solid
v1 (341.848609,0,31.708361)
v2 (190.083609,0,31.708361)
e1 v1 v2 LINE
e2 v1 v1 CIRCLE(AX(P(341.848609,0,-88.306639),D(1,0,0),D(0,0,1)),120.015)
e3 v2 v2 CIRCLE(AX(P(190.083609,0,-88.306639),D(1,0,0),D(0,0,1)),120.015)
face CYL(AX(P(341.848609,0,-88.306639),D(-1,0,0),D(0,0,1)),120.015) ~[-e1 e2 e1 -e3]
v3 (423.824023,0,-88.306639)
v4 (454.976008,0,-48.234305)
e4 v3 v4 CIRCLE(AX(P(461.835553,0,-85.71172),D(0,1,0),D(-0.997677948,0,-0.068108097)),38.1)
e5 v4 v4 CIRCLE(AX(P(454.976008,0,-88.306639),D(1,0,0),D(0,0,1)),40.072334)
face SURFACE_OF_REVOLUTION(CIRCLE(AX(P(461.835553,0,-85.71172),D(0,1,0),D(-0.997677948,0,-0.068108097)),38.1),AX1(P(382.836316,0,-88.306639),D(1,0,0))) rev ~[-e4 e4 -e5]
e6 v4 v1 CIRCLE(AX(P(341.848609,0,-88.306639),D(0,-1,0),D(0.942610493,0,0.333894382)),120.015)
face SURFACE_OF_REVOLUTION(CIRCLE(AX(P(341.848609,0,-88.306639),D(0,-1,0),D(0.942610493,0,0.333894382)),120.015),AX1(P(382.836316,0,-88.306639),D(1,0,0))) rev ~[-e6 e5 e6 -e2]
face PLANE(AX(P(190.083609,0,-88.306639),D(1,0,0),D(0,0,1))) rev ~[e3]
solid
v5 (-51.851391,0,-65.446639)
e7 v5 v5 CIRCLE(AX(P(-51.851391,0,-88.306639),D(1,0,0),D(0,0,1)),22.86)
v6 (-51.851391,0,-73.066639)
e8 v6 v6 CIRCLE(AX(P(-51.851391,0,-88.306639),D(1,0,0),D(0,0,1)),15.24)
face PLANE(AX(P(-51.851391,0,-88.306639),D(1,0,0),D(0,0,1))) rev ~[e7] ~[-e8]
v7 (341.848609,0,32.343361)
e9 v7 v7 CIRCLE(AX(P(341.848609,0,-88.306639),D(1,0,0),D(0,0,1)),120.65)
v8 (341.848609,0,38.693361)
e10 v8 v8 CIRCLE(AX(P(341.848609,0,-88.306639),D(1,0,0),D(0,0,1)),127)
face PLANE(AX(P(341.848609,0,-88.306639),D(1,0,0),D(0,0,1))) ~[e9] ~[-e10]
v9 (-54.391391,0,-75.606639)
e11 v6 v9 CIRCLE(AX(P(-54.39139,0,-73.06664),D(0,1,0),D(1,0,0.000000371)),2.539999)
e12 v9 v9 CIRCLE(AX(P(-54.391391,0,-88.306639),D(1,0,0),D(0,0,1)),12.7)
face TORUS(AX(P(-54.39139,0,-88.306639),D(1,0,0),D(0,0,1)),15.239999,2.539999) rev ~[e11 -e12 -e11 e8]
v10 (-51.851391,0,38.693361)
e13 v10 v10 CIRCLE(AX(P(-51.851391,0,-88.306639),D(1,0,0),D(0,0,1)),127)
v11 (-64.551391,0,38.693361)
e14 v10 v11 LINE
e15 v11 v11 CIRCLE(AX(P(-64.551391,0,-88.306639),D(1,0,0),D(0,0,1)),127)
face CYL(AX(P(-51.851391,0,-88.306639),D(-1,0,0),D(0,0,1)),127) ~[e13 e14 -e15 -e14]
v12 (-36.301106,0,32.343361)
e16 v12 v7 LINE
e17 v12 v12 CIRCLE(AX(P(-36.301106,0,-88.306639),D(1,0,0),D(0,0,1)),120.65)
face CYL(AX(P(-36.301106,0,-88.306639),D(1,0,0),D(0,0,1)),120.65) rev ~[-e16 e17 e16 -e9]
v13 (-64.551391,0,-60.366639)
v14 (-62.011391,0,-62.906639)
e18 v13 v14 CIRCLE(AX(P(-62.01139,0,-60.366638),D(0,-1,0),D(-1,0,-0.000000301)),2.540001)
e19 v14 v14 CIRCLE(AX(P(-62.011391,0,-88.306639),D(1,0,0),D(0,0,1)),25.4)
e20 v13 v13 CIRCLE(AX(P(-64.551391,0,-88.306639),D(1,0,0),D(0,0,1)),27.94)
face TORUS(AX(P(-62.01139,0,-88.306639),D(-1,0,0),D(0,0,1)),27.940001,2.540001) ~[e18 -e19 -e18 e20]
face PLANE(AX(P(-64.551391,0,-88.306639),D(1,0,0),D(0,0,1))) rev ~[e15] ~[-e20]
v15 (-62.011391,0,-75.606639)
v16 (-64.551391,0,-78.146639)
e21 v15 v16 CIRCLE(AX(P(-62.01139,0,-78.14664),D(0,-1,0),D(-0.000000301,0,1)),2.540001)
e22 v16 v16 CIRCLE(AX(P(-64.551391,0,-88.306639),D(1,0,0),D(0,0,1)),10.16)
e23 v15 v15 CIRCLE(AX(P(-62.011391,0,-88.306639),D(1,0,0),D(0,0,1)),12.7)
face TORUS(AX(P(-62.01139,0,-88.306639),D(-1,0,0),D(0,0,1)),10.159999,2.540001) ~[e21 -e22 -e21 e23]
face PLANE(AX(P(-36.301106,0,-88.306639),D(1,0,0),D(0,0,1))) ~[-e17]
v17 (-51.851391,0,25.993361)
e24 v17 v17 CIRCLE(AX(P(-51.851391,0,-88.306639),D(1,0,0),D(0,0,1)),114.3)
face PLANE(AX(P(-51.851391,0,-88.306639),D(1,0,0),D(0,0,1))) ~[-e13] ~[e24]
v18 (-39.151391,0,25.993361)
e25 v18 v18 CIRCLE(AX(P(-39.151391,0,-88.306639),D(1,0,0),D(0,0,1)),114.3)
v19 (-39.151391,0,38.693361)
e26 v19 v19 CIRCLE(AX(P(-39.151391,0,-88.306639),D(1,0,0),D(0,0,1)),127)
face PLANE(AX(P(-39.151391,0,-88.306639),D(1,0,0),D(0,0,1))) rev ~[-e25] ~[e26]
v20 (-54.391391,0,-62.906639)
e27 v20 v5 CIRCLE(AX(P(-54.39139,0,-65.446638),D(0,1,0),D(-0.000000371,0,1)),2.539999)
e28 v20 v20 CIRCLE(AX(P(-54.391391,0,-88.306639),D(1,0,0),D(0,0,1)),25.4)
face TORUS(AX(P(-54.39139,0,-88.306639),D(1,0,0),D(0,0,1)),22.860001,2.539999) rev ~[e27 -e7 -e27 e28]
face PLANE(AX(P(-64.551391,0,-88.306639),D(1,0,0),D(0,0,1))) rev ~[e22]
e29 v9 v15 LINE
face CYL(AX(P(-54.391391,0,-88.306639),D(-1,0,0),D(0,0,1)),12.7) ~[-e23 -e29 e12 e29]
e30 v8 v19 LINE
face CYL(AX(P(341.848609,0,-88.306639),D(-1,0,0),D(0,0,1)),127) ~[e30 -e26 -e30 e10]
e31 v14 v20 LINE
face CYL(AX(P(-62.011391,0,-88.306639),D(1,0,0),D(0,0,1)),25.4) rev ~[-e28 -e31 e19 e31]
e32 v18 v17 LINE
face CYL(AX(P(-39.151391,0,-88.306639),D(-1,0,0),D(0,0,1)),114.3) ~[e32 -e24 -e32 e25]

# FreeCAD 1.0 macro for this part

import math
import FreeCAD as App
import Part
import Sketcher
Q = App.Units.Quantity

doc = App.newDocument("Part")
params = doc.addObject("Spreadsheet::Sheet", "Params")
for row, (alias, value) in enumerate([
    ("sketch1_radius", "0.1 in"),
    ("sketch1_width", "15 in"),
    ("sketch1_width2", "16 in"),
    ("sketch1_height", "3.9 in"),
    ("sketch1_height2", "0.4 in"),
    ("revolution_angle", "360 deg"),
    ("sketch2_radius", "1.5 in"),
    ("sketch2_radius2", "4.725 in"),
    ("sketch2_width", "5.975 in"),
    ("revolution2_angle", "360 deg"),
], start=1):
    params.set(f"A{row}", alias)
    params.set(f"B{row}", "=" + value)
    params.setAlias(f"B{row}", alias)

body = doc.addObject("PartDesign::Body", "Body")

# Sketch on XZ plane
sketch1 = body.newObject("Sketcher::SketchObject", "Sketch")
sketch1.AttachmentSupport = (doc.getObject("XZ_Plane"), [""])
sketch1.MapMode = "FlatFace"
sketch1.addGeometry([
    Part.LineSegment(App.Vector(-51.9, 38.7, 0), App.Vector(-64.6, 38.7, 0)),  # 0
    Part.LineSegment(App.Vector(-64.6, 38.7, 0), App.Vector(-64.6, -60.4, 0)),  # 1
    Part.ArcOfCircle(Part.Circle(App.Vector(-62, -60.4, 0), App.Vector(0, 0, 1), 2.5), math.radians(-180), math.radians(-90)),  # 2
    Part.LineSegment(App.Vector(-62, -62.9, 0), App.Vector(-54.4, -62.9, 0)),  # 3
    Part.ArcOfCircle(Part.Circle(App.Vector(-54.4, -65.4, 0), App.Vector(0, 0, 1), 2.5), math.radians(0), math.radians(90)),  # 4
    Part.LineSegment(App.Vector(-51.9, -65.4, 0), App.Vector(-51.9, -73.1, 0)),  # 5
    Part.ArcOfCircle(Part.Circle(App.Vector(-54.4, -73.1, 0), App.Vector(0, 0, 1), 2.5), math.radians(-90), math.radians(0)),  # 6
    Part.LineSegment(App.Vector(-54.4, -75.6, 0), App.Vector(-62, -75.6, 0)),  # 7
    Part.ArcOfCircle(Part.Circle(App.Vector(-62, -78.1, 0), App.Vector(0, 0, 1), 2.5), math.radians(90), math.radians(180)),  # 8
    Part.LineSegment(App.Vector(-64.6, -78.1, 0), App.Vector(-64.6, -88.3, 0)),  # 9
    Part.LineSegment(App.Vector(-64.6, -88.3, 0), App.Vector(-36.3, -88.3, 0)),  # 10
    Part.LineSegment(App.Vector(-36.3, -88.3, 0), App.Vector(-36.3, 32.3, 0)),  # 11
    Part.LineSegment(App.Vector(-36.3, 32.3, 0), App.Vector(341.8, 32.3, 0)),  # 12
    Part.LineSegment(App.Vector(341.8, 32.3, 0), App.Vector(341.8, 38.7, 0)),  # 13
    Part.LineSegment(App.Vector(341.8, 38.7, 0), App.Vector(-39.2, 38.7, 0)),  # 14
    Part.LineSegment(App.Vector(-39.2, 38.7, 0), App.Vector(-39.2, 26, 0)),  # 15
    Part.LineSegment(App.Vector(-39.2, 26, 0), App.Vector(-51.9, 26, 0)),  # 16
    Part.LineSegment(App.Vector(-51.9, 26, 0), App.Vector(-51.9, 38.7, 0)),  # 17
], False)
sketch1.addGeometry(Part.LineSegment(App.Vector(-64.6, -88.3, 0), App.Vector(341.8, -88.3, 0)), True)  # axis
sketch1.addConstraint([
    Sketcher.Constraint("Coincident", 0, 2, 1, 1),
    Sketcher.Constraint("Tangent", 1, 2, 2, 1),
    Sketcher.Constraint("Tangent", 2, 2, 3, 1),
    Sketcher.Constraint("Tangent", 3, 2, 4, 2),
    Sketcher.Constraint("Tangent", 4, 1, 5, 1),
    Sketcher.Constraint("Tangent", 5, 2, 6, 2),
    Sketcher.Constraint("Tangent", 6, 1, 7, 1),
    Sketcher.Constraint("Tangent", 7, 2, 8, 1),
    Sketcher.Constraint("Tangent", 8, 2, 9, 1),
    Sketcher.Constraint("Coincident", 9, 2, 10, 1),
    Sketcher.Constraint("Coincident", 10, 2, 11, 1),
    Sketcher.Constraint("Coincident", 11, 2, 12, 1),
    Sketcher.Constraint("Coincident", 12, 2, 13, 1),
    Sketcher.Constraint("Coincident", 13, 2, 14, 1),
    Sketcher.Constraint("Coincident", 14, 2, 15, 1),
    Sketcher.Constraint("Coincident", 15, 2, 16, 1),
    Sketcher.Constraint("Coincident", 16, 2, 17, 1),
    Sketcher.Constraint("Coincident", 17, 2, 0, 1),
    Sketcher.Constraint("Horizontal", 0),
    Sketcher.Constraint("Vertical", 1),
    Sketcher.Constraint("Horizontal", 3),
    Sketcher.Constraint("Vertical", 5),
    Sketcher.Constraint("Horizontal", 7),
    Sketcher.Constraint("Vertical", 9),
    Sketcher.Constraint("Horizontal", 10),
    Sketcher.Constraint("Vertical", 11),
    Sketcher.Constraint("Horizontal", 12),
    Sketcher.Constraint("Vertical", 13),
    Sketcher.Constraint("Horizontal", 14),
    Sketcher.Constraint("Vertical", 15),
    Sketcher.Constraint("Horizontal", 16),
    Sketcher.Constraint("Vertical", 17),
    Sketcher.Constraint("Horizontal", 18),
    Sketcher.Constraint("Coincident", 18, 1, 9, 2),
    Sketcher.Constraint("Equal", 2, 4),
    Sketcher.Constraint("Equal", 4, 6),
    Sketcher.Constraint("Equal", 6, 8),
    Sketcher.Constraint("Horizontal", 0, 2, 13, 2),
    Sketcher.Constraint("Vertical", 2, 3, 8, 3),
    Sketcher.Constraint("Vertical", 5, 2, 16, 2),
    Sketcher.Constraint("Vertical", 13, 2, 18, 2),
    Sketcher.Constraint("Equal", 0, 16),
    Sketcher.Constraint("Equal", 7, 5),
    Sketcher.Constraint("Equal", 16, 15),
    Sketcher.Constraint("Radius", 2, Q("0.1 in")),
    Sketcher.Constraint("DistanceX", 14, 2, 14, 1, Q("15 in")),
    Sketcher.Constraint("DistanceX", 18, 1, 18, 2, Q("16 in")),
    Sketcher.Constraint("DistanceY", 1, 2, 1, 1, Q("3.9 in")),
    Sketcher.Constraint("DistanceY", 9, 2, 9, 1, Q("0.4 in")),
    Sketcher.Constraint("DistanceY", 11, 1, 11, 2, Q("4.75 in")),
    Sketcher.Constraint("DistanceX", 10, 1, 10, 2, 28.250285),
    Sketcher.Constraint("DistanceX", 2, 3, -1, 1, 62.01139),
    Sketcher.Constraint("DistanceY", 2, 3, -1, 1, 60.366638),
])
sketch1.setExpression("Constraints[44]", "Params.sketch1_radius")
sketch1.setExpression("Constraints[45]", "Params.sketch1_width")
sketch1.setExpression("Constraints[46]", "Params.sketch1_width2")
sketch1.setExpression("Constraints[47]", "Params.sketch1_height")
sketch1.setExpression("Constraints[48]", "Params.sketch1_height2")
revolution = body.newObject("PartDesign::Revolution", "Revolution")
revolution.Profile = sketch1
revolution.ReferenceAxis = (sketch1, ["Axis0"])
revolution.setExpression("Angle", "Params.revolution_angle")
body2 = doc.addObject("PartDesign::Body", "Body001")

# Sketch on XZ plane
sketch2 = body2.newObject("Sketcher::SketchObject", "Sketch001")
sketch2.AttachmentSupport = (doc.getObject("XZ_Plane001"), [""])
sketch2.MapMode = "FlatFace"
sketch2.addGeometry([
    Part.ArcOfCircle(Part.Circle(App.Vector(342, -88, 0), App.Vector(0, 0, 1), 120), math.radians(20), math.radians(90)),  # 0
    Part.LineSegment(App.Vector(342, 32, 0), App.Vector(190, 32, 0)),  # 1
    Part.LineSegment(App.Vector(190, 32, 0), App.Vector(190, -88, 0)),  # 2
    Part.LineSegment(App.Vector(190, -88, 0), App.Vector(424, -88, 0)),  # 3
    Part.ArcOfCircle(Part.Circle(App.Vector(462, -86, 0), App.Vector(0, 0, 1), 38), math.radians(100), math.radians(184)),  # 4
], False)
sketch2.addGeometry(Part.LineSegment(App.Vector(190, -88, 0), App.Vector(462, -88, 0)), True)  # axis
sketch2.addConstraint([
    Sketcher.Constraint("Tangent", 0, 2, 1, 1),
    Sketcher.Constraint("Coincident", 1, 2, 2, 1),
    Sketcher.Constraint("Coincident", 2, 2, 3, 1),
    Sketcher.Constraint("Coincident", 3, 2, 4, 2),
    Sketcher.Constraint("Coincident", 4, 1, 0, 1),
    Sketcher.Constraint("Horizontal", 1),
    Sketcher.Constraint("Vertical", 2),
    Sketcher.Constraint("Horizontal", 3),
    Sketcher.Constraint("Horizontal", 5),
    Sketcher.Constraint("Coincident", 5, 1, 2, 2),
    Sketcher.Constraint("Horizontal", 0, 3, 2, 2),
    Sketcher.Constraint("Vertical", 4, 3, 5, 2),
    Sketcher.Constraint("Radius", 4, Q("1.5 in")),
    Sketcher.Constraint("Radius", 0, Q("4.725 in")),
    Sketcher.Constraint("DistanceX", 1, 2, 1, 1, Q("5.975 in")),
    Sketcher.Constraint("DistanceX", 0, 3, 4, 1, 113.127399),
    Sketcher.Constraint("DistanceX", 3, 1, 3, 2, 233.740414),
    Sketcher.Constraint("DistanceX", -1, 1, 0, 3, 341.848609),
    Sketcher.Constraint("DistanceY", 0, 3, -1, 1, 88.306639),
])
sketch2.setExpression("Constraints[12]", "Params.sketch2_radius")
sketch2.setExpression("Constraints[13]", "Params.sketch2_radius2")
sketch2.setExpression("Constraints[14]", "Params.sketch2_width")
revolution2 = body2.newObject("PartDesign::Revolution", "Revolution001")
revolution2.Profile = sketch2
revolution2.ReferenceAxis = (sketch2, ["Axis0"])
revolution2.setExpression("Angle", "Params.revolution2_angle")

doc.recompute()
